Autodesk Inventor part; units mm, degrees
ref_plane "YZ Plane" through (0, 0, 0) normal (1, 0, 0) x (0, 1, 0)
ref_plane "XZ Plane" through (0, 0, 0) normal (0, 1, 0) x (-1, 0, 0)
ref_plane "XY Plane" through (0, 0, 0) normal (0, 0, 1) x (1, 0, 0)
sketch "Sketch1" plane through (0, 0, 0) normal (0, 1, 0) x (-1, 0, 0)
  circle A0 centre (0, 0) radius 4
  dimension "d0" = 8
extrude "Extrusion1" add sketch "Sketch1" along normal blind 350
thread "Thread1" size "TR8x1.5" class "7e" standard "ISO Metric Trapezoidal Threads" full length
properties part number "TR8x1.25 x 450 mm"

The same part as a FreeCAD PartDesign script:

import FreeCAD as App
import Part
import Sketcher

doc = App.newDocument("Part")
body = doc.addObject("PartDesign::Body", "Body")

# Sketch on XZ plane
sketch1 = doc.addObject("Sketcher::SketchObject", "Sketch")
body.addObject(sketch1)
sketch1.AttachmentSupport = (doc.XZ_Plane, [""])
sketch1.MapMode = "FlatFace"
sketch1.addGeometry(Part.Circle(App.Vector(0, 0, 0), App.Vector(0, 0, 1), 4), False)
sketch1.addConstraint([
    Sketcher.Constraint("Coincident", 0, 3, -1, 1),
    Sketcher.Constraint("Diameter", 0, 8.0),
])
pad1 = doc.addObject("PartDesign::Pad", "Pad")
body.addObject(pad1)
pad1.Profile = sketch1
pad1.Length = 350
pad1.Reversed = True

doc.recompute()
